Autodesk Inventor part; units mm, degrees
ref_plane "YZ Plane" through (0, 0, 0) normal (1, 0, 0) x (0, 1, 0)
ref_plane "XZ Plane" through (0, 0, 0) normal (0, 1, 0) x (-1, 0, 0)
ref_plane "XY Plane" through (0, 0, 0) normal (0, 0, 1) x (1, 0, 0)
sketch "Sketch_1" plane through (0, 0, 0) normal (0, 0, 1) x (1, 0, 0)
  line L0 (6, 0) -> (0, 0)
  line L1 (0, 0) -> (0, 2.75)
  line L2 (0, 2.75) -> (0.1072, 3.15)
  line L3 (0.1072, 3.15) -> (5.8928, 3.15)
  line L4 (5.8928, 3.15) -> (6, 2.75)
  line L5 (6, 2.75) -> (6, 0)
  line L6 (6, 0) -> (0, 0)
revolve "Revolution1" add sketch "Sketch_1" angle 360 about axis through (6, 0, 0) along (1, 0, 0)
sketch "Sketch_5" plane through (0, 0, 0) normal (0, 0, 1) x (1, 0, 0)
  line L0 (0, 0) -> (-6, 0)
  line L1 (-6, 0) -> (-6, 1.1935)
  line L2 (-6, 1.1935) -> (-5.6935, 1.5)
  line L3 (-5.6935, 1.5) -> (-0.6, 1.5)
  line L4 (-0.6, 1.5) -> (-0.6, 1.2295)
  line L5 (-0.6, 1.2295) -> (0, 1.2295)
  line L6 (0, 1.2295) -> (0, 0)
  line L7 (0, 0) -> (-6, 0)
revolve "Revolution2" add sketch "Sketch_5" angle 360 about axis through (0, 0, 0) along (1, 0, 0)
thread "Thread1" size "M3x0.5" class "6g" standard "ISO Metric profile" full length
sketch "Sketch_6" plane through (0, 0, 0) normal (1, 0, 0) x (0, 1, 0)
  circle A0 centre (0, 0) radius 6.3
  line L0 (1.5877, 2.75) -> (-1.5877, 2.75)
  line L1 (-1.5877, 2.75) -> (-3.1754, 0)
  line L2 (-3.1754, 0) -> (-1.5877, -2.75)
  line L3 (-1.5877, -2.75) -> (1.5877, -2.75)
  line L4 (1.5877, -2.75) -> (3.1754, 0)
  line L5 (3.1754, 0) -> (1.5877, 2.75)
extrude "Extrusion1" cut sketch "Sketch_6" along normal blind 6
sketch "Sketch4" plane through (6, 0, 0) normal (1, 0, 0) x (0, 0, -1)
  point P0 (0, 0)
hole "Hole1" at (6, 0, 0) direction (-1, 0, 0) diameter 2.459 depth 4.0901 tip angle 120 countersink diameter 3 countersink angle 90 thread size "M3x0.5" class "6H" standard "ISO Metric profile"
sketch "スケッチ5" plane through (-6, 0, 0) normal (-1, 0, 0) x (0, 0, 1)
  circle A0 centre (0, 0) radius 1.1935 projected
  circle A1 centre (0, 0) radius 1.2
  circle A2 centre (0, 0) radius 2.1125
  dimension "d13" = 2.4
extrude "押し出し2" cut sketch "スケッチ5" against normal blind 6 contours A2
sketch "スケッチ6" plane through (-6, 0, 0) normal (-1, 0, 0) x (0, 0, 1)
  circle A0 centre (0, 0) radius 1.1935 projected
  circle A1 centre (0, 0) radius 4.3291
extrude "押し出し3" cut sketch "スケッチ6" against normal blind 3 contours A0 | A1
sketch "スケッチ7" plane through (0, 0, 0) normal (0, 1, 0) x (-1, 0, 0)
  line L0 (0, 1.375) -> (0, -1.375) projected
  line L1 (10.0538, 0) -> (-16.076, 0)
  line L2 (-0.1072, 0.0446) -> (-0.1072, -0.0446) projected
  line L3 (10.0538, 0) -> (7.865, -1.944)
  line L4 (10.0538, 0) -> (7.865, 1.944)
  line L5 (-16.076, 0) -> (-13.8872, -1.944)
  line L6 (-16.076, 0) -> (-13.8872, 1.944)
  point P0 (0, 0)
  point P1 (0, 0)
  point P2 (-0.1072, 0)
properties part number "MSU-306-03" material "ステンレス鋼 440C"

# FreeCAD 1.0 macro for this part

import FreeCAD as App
import Part
import Sketcher
from FreeCAD import Vector
Q = App.Units.Quantity

doc = App.newDocument("Part")
params = doc.addObject("Spreadsheet::Sheet", "Params")
for row, (alias, value) in enumerate([
    ("sketch1_width", "6 mm"),
    ("sketch1_height", "2.75 mm"),
    ("revolution_angle", "360 deg"),
    ("sketch2_width", "6 mm"),
    ("sketch2_width2", "0.6 mm"),
    ("revolution2_angle", "360 deg"),
    ("sketch3_diameter", "12.6 mm"),
    ("pocket1_length", "6 mm"),
    ("hole_diameter", "2.459 mm"),
    ("hole_depth", "4.0901 mm"),
    ("hole_csink_diameter", "3 mm"),
    ("sketch5_diameter", "2.4 mm"),
    ("pocket2_length", "6 mm"),
    ("pocket3_length", "3 mm"),
], start=1):
    params.set(f"A{row}", alias)
    params.set(f"B{row}", "=" + value)
    params.setAlias(f"B{row}", alias)

body = doc.addObject("PartDesign::Body", "Body")

sketch1 = body.newObject("Sketcher::SketchObject", "Sketch")
sketch1.AttachmentSupport = (doc.getObject("XY_Plane"), [""])
sketch1.MapMode = "FlatFace"
sketch1.addGeometry([
    Part.LineSegment(Vector(0, 0, 0), Vector(6, 0, 0)),
    Part.LineSegment(Vector(6, 0, 0), Vector(6, 2.75, 0)),
    Part.LineSegment(Vector(6, 2.75, 0), Vector(5.89, 3.15, 0)),
    Part.LineSegment(Vector(5.89, 3.15, 0), Vector(0.11, 3.15, 0)),
    Part.LineSegment(Vector(0.11, 3.15, 0), Vector(0, 2.75, 0)),
    Part.LineSegment(Vector(0, 2.75, 0), Vector(0, 0, 0)),
], False)
sketch1.addConstraint([
    Sketcher.Constraint("Coincident", 0, 2, 1, 1),
    Sketcher.Constraint("Coincident", 1, 2, 2, 1),
    Sketcher.Constraint("Coincident", 2, 2, 3, 1),
    Sketcher.Constraint("Coincident", 3, 2, 4, 1),
    Sketcher.Constraint("Coincident", 4, 2, 5, 1),
    Sketcher.Constraint("Coincident", 5, 2, 0, 1),
    Sketcher.Constraint("Horizontal", 0),
    Sketcher.Constraint("Vertical", 1),
    Sketcher.Constraint("Horizontal", 3),
    Sketcher.Constraint("Vertical", 5),
    Sketcher.Constraint("Coincident", 5, 2, -1, 1),
    Sketcher.Constraint("Horizontal", 1, 2, 4, 2),
    Sketcher.Constraint("Equal", 2, 4),
    Sketcher.Constraint("DistanceX", 0, 1, 0, 2, 6.0),
    Sketcher.Constraint("DistanceY", 1, 1, 1, 2, 2.75),
    Sketcher.Constraint("DistanceY", 1, 2, 2, 2, 0.4),
    Sketcher.Constraint("Distance", 2, 0.414),
])
sketch1.setExpression("Constraints[13]", "Params.sketch1_width")
sketch1.setExpression("Constraints[14]", "Params.sketch1_height")
revolution = body.newObject("PartDesign::Revolution", "Revolution")
revolution.Profile = sketch1
revolution.ReferenceAxis = (sketch1, ["H_Axis"])
revolution.setExpression("Angle", "Params.revolution_angle")

sketch2 = body.newObject("Sketcher::SketchObject", "Sketch001")
sketch2.AttachmentSupport = (doc.getObject("XY_Plane"), [""])
sketch2.MapMode = "FlatFace"
sketch2.addGeometry([
    Part.LineSegment(Vector(-6, 0, 0), Vector(0, 0, 0)),
    Part.LineSegment(Vector(0, 0, 0), Vector(0, 1.23, 0)),
    Part.LineSegment(Vector(0, 1.23, 0), Vector(-0.6, 1.23, 0)),
    Part.LineSegment(Vector(-0.6, 1.23, 0), Vector(-0.6, 1.5, 0)),
    Part.LineSegment(Vector(-0.6, 1.5, 0), Vector(-5.69, 1.5, 0)),
    Part.LineSegment(Vector(-5.69, 1.5, 0), Vector(-6, 1.19, 0)),
    Part.LineSegment(Vector(-6, 1.19, 0), Vector(-6, 0, 0)),
], False)
sketch2.addConstraint([
    Sketcher.Constraint("Coincident", 0, 2, 1, 1),
    Sketcher.Constraint("Coincident", 1, 2, 2, 1),
    Sketcher.Constraint("Coincident", 2, 2, 3, 1),
    Sketcher.Constraint("Coincident", 3, 2, 4, 1),
    Sketcher.Constraint("Coincident", 4, 2, 5, 1),
    Sketcher.Constraint("Coincident", 5, 2, 6, 1),
    Sketcher.Constraint("Coincident", 6, 2, 0, 1),
    Sketcher.Constraint("Horizontal", 0),
    Sketcher.Constraint("Vertical", 1),
    Sketcher.Constraint("Horizontal", 2),
    Sketcher.Constraint("Vertical", 3),
    Sketcher.Constraint("Horizontal", 4),
    Sketcher.Constraint("Vertical", 6),
    Sketcher.Constraint("Coincident", 0, 2, -1, 1),
    Sketcher.Constraint("DistanceX", 0, 1, 0, 2, 6.0),
    Sketcher.Constraint("Angle", 5, Q("-135 deg")),
    Sketcher.Constraint("DistanceX", 2, 2, 2, 1, 0.6),
    Sketcher.Constraint("DistanceY", -1, 1, 3, 2, 1.5),
    Sketcher.Constraint("DistanceX", 4, 2, 4, 1, 5.0935),
    Sketcher.Constraint("DistanceY", 1, 1, 1, 2, 1.2295),
])
sketch2.setExpression("Constraints[14]", "Params.sketch2_width")
sketch2.setExpression("Constraints[16]", "Params.sketch2_width2")
revolution2 = body.newObject("PartDesign::Revolution", "Revolution001")
revolution2.Profile = sketch2
revolution2.ReferenceAxis = (sketch2, ["H_Axis"])
revolution2.setExpression("Angle", "Params.revolution2_angle")

sketch3 = body.newObject("Sketcher::SketchObject", "Sketch002")
sketch3.AttachmentSupport = (doc.getObject("YZ_Plane"), [""])
sketch3.MapMode = "FlatFace"
sketch3.addGeometry([
    Part.Circle(Vector(0, 0, 0), Vector(0, 0, 1), 6.3),
    Part.LineSegment(Vector(-1.6, 2.8, 0), Vector(1.6, 2.8, 0)),
    Part.LineSegment(Vector(1.6, 2.8, 0), Vector(3.2, 0, 0)),
    Part.LineSegment(Vector(3.2, 0, 0), Vector(1.6, -2.8, 0)),
    Part.LineSegment(Vector(1.6, -2.8, 0), Vector(-1.6, -2.8, 0)),
    Part.LineSegment(Vector(-1.6, -2.8, 0), Vector(-3.2, 0, 0)),
    Part.LineSegment(Vector(-3.2, 0, 0), Vector(-1.6, 2.8, 0)),
], False)
sketch3.addConstraint([
    Sketcher.Constraint("Coincident", 1, 2, 2, 1),
    Sketcher.Constraint("Coincident", 2, 2, 3, 1),
    Sketcher.Constraint("Coincident", 3, 2, 4, 1),
    Sketcher.Constraint("Coincident", 4, 2, 5, 1),
    Sketcher.Constraint("Coincident", 5, 2, 6, 1),
    Sketcher.Constraint("Coincident", 6, 2, 1, 1),
    Sketcher.Constraint("Horizontal", 1),
    Sketcher.Constraint("Horizontal", 4),
    Sketcher.Constraint("Coincident", 0, 3, -1, 1),
    Sketcher.Constraint("Symmetric", 1, 2, 4, 2, -1, 1),
    Sketcher.Constraint("Symmetric", 2, 2, 5, 2, -1, 1),
    Sketcher.Constraint("PointOnObject", 2, 2, -1),
    Sketcher.Constraint("Parallel", 3, 6),
    Sketcher.Constraint("Vertical", 1, 2, 3, 2),
    Sketcher.Constraint("Diameter", 0, 12.6),
    Sketcher.Constraint("Angle", 2, Q("-60.0002 deg")),
    Sketcher.Constraint("DistanceY", 3, 2, 1, 2, 5.5),
    Sketcher.Constraint("DistanceX", 1, 1, 1, 2, 3.1754),
])
sketch3.setExpression("Constraints[14]", "Params.sketch3_diameter")
pocket1 = body.newObject("PartDesign::Pocket", "Pocket")
pocket1.Profile = sketch3
pocket1.setExpression("Length", "Params.pocket1_length")
pocket1.Reversed = True

sketch4 = body.newObject("Sketcher::SketchObject", "Sketch003")
sketch4.AttachmentSupport = (doc.getObject("YZ_Plane"), [""])
sketch4.MapMode = "FlatFace"
sketch4.AttachmentOffset = App.Placement(Vector(0, 0, 6), App.Rotation())
sketch4.addGeometry(Part.Circle(Vector(0, 0, 0), Vector(0, 0, 1), 1.2), False)
sketch4.addConstraint([
    Sketcher.Constraint("Coincident", 0, 3, -1, 1),
    Sketcher.Constraint("Diameter", 0, 2.459),
])
doc.recompute()
hole = body.newObject("PartDesign::Hole", "Hole")
hole.Profile = sketch4
hole.ThreadType = "None"
hole.setExpression("Diameter", "Params.hole_diameter")
hole.DepthType = "Dimension"
hole.setExpression("Depth", "Params.hole_depth")
hole.DrillPoint = "Angled"
hole.DrillPointAngle = 120
hole.HoleCutType = "Countersink"
hole.setExpression("HoleCutDiameter", "Params.hole_csink_diameter")
hole.HoleCutCountersinkAngle = 90

sketch5 = body.newObject("Sketcher::SketchObject", "Sketch004")
sketch5.AttachmentSupport = (doc.getObject("YZ_Plane"), [""])
sketch5.MapMode = "FlatFace"
sketch5.AttachmentOffset = App.Placement(Vector(0, 0, -6), App.Rotation())
sketch5.addGeometry([
    Part.Circle(Vector(0, 0, 0), Vector(0, 0, 1), 2.1),
    Part.Circle(Vector(0, 0, 0), Vector(0, 0, 1), 1.2),
], False)
sketch5.addConstraint([
    Sketcher.Constraint("Coincident", 0, 3, -1, 1),
    Sketcher.Constraint("Coincident", 1, 3, -1, 1),
    Sketcher.Constraint("Diameter", 1, 2.4),
    Sketcher.Constraint("Diameter", 0, 4.225),
])
sketch5.setExpression("Constraints[2]", "Params.sketch5_diameter")
pocket2 = body.newObject("PartDesign::Pocket", "Pocket001")
pocket2.Profile = sketch5
pocket2.setExpression("Length", "Params.pocket2_length")
pocket2.Reversed = True

sketch6 = body.newObject("Sketcher::SketchObject", "Sketch005")
sketch6.AttachmentSupport = (doc.getObject("YZ_Plane"), [""])
sketch6.MapMode = "FlatFace"
sketch6.AttachmentOffset = App.Placement(Vector(0, 0, -6), App.Rotation())
sketch6.addGeometry(Part.Circle(Vector(0, 0, 0), Vector(0, 0, 1), 4.3), False)
sketch6.addConstraint([
    Sketcher.Constraint("Coincident", 0, 3, -1, 1),
    Sketcher.Constraint("Diameter", 0, 8.6582),
])
pocket3 = body.newObject("PartDesign::Pocket", "Pocket002")
pocket3.Profile = sketch6
pocket3.setExpression("Length", "Params.pocket3_length")
pocket3.Reversed = True

doc.recompute()
